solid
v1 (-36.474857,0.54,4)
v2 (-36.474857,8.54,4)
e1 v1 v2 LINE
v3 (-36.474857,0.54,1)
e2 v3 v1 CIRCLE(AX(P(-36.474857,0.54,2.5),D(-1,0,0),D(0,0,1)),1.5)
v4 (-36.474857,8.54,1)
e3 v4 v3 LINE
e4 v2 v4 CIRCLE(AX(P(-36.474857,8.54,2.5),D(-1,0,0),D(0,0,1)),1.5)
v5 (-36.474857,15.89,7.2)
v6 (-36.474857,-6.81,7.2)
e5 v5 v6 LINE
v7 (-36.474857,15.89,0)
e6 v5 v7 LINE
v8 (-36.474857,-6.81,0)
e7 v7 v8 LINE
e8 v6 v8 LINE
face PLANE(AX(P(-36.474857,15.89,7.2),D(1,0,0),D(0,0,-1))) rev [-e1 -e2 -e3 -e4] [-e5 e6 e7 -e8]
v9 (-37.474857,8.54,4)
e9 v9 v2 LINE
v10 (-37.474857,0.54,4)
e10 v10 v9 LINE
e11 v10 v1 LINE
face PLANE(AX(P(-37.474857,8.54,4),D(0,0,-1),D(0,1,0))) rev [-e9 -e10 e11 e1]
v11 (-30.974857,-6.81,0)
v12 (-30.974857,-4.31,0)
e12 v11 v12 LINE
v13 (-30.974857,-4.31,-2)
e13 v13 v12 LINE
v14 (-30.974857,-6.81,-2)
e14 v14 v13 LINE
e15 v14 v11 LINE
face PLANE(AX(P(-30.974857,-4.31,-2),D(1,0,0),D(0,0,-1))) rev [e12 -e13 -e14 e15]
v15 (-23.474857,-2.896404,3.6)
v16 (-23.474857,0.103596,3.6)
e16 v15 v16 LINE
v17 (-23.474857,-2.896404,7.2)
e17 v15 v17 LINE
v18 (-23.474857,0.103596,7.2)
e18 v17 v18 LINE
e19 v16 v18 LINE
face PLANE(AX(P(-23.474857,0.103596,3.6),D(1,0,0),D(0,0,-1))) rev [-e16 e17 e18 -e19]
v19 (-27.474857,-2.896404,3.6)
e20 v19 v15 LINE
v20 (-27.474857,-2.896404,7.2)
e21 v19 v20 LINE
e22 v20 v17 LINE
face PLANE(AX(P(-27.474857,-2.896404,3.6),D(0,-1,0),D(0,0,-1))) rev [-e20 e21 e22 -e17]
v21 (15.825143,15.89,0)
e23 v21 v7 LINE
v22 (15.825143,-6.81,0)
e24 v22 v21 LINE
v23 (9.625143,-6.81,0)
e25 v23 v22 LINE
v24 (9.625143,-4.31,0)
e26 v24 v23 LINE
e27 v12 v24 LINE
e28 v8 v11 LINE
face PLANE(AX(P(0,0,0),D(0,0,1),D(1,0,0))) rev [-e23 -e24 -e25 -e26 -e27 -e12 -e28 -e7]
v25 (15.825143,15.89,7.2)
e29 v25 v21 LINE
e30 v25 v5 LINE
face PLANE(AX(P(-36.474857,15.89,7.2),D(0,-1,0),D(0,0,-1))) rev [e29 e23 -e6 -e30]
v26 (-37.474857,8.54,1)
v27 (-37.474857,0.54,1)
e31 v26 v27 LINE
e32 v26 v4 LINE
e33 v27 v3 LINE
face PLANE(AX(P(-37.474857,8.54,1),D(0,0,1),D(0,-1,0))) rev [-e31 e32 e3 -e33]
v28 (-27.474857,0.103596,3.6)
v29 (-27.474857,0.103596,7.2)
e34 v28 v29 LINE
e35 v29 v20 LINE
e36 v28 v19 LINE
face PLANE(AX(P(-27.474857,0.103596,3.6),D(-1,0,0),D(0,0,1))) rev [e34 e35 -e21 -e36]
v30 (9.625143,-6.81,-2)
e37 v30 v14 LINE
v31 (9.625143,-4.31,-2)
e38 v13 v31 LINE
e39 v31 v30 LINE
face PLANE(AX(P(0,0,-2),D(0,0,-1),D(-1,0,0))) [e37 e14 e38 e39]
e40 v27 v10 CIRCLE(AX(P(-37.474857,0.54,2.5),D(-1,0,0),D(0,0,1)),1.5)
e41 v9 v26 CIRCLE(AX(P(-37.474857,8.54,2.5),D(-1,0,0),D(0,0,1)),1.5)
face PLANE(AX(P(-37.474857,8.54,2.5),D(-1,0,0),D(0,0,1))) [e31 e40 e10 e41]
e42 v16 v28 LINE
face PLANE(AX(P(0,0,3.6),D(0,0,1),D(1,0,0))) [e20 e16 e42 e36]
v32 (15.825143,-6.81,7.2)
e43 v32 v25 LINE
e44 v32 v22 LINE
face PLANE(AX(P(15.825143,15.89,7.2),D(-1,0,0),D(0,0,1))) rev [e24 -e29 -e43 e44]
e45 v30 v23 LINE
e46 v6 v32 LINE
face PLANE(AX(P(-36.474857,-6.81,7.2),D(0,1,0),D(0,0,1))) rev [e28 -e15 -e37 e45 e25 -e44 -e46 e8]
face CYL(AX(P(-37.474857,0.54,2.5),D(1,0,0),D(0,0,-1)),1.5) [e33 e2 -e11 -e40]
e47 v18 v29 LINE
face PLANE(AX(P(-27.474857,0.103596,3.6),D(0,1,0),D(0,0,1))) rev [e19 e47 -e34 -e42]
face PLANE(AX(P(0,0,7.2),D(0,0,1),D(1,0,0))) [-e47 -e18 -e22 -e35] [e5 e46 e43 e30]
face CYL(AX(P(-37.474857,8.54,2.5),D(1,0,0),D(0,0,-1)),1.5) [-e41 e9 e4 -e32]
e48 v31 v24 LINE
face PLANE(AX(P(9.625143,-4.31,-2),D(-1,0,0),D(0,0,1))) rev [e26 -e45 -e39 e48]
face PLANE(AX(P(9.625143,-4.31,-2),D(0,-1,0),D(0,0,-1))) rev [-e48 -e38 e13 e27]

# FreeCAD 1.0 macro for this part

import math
import FreeCAD as App
import Part
import Sketcher
from FreeCAD import Vector


def add_polygon(sketch, points):
    """Adds a closed chain of lines whose ends are joined by coincident constraints."""
    first, n = sketch.GeometryCount, len(points)
    for a, b in zip(points, points[1:] + points[:1]):
        sketch.addGeometry(Part.LineSegment(App.Vector(*a, 0), App.Vector(*b, 0)), False)
    for i in range(n):
        sketch.addConstraint(Sketcher.Constraint("Coincident", first + i, 2, first + (i + 1) % n, 1))

doc = App.newDocument("Part")
body = doc.addObject("PartDesign::Body", "Body")

# Sketch on XY plane
sketch1 = body.newObject("Sketcher::SketchObject", "Sketch")
sketch1.AttachmentSupport = (doc.getObject("XY_Plane"), [""])
sketch1.MapMode = "FlatFace"
add_polygon(sketch1, [(-36.474857, 15.89), (-36.474857, -6.81), (15.825143, -6.81), (15.825143, 15.89)])  # lines 0-3
sketch1.addConstraint([
    Sketcher.Constraint("Vertical", 0),
    Sketcher.Constraint("Horizontal", 1),
    Sketcher.Constraint("Vertical", 2),
    Sketcher.Constraint("Horizontal", 3),
    Sketcher.Constraint("DistanceX", 1, 1, 1, 2, 52.3),
    Sketcher.Constraint("DistanceY", 0, 2, 0, 1, 22.7),
    Sketcher.Constraint("DistanceY", 0, 2, -1, 1, 6.81),
    Sketcher.Constraint("DistanceX", 0, 2, -1, 1, 36.474857),
])
pad1 = body.newObject("PartDesign::Pad", "Pad")
pad1.Profile = sketch1
pad1.Length = 7.2

# Sketch on XY plane
sketch2 = body.newObject("Sketcher::SketchObject", "Sketch001")
sketch2.AttachmentSupport = (doc.getObject("XY_Plane"), [""])
sketch2.MapMode = "FlatFace"
add_polygon(sketch2, [(9.625143, -4.31), (9.625143, -6.81), (-30.974857, -6.81), (-30.974857, -4.31)])  # lines 0-3
sketch2.addConstraint([
    Sketcher.Constraint("Vertical", 0),
    Sketcher.Constraint("Horizontal", 1),
    Sketcher.Constraint("Vertical", 2),
    Sketcher.Constraint("Horizontal", 3),
    Sketcher.Constraint("DistanceX", 1, 2, 1, 1, 40.6),
    Sketcher.Constraint("DistanceY", 0, 2, 0, 1, 2.5),
    Sketcher.Constraint("DistanceY", 0, 2, -1, 1, 6.81),
    Sketcher.Constraint("DistanceX", -1, 1, 0, 2, 9.625143),
])
pad2 = body.newObject("PartDesign::Pad", "Pad001")
pad2.Profile = sketch2
pad2.Length = 2
pad2.Reversed = True

# Sketch on YZ plane
sketch3 = body.newObject("Sketcher::SketchObject", "Sketch002")
sketch3.AttachmentSupport = (doc.getObject("YZ_Plane"), [""])
sketch3.MapMode = "FlatFace"
sketch3.AttachmentOffset = App.Placement(Vector(0, 0, -36.474857), App.Rotation())
sketch3.addGeometry([
    Part.LineSegment(Vector(0.54, 4, 0), Vector(8.54, 4, 0)),
    Part.ArcOfCircle(Part.Circle(Vector(8.54, 2.5, 0), Vector(0, 0, 1), 1.5), math.radians(-90), math.radians(90)),
    Part.LineSegment(Vector(8.54, 1, 0), Vector(0.54, 1, 0)),
    Part.ArcOfCircle(Part.Circle(Vector(0.54, 2.5, 0), Vector(0, 0, 1), 1.5), math.radians(90), math.radians(270)),
], False)
sketch3.addConstraint([
    Sketcher.Constraint("Tangent", 0, 2, 1, 2),
    Sketcher.Constraint("Tangent", 1, 1, 2, 1),
    Sketcher.Constraint("Tangent", 2, 2, 3, 2),
    Sketcher.Constraint("Tangent", 3, 1, 0, 1),
    Sketcher.Constraint("Horizontal", 0),
    Sketcher.Constraint("Horizontal", 2),
    Sketcher.Constraint("Radius", 1, 1.5),
    Sketcher.Constraint("DistanceX", 0, 1, 0, 2, 8.0),
    Sketcher.Constraint("DistanceY", -1, 1, 0, 2, 4.0),
    Sketcher.Constraint("DistanceX", -1, 1, 1, 3, 8.54),
])
pad3 = body.newObject("PartDesign::Pad", "Pad002")
pad3.Profile = sketch3
pad3.Length = 1
pad3.Reversed = True

# Sketch on XY plane
sketch4 = body.newObject("Sketcher::SketchObject", "Sketch003")
sketch4.AttachmentSupport = (doc.getObject("XY_Plane"), [""])
sketch4.MapMode = "FlatFace"
sketch4.AttachmentOffset = App.Placement(Vector(0, 0, 7.2), App.Rotation())
add_polygon(sketch4, [(-27.474857, 0.103596), (-27.474857, -2.896404), (-23.474857, -2.896404), (-23.474857, 0.103596)])  # lines 0-3
sketch4.addConstraint([
    Sketcher.Constraint("Vertical", 0),
    Sketcher.Constraint("Horizontal", 1),
    Sketcher.Constraint("Vertical", 2),
    Sketcher.Constraint("Horizontal", 3),
    Sketcher.Constraint("DistanceX", 1, 1, 1, 2, 4.0),
    Sketcher.Constraint("DistanceY", 0, 2, 0, 1, 3.0),
    Sketcher.Constraint("DistanceX", 0, 2, -1, 1, 27.474857),
    Sketcher.Constraint("DistanceY", 0, 2, -1, 1, 2.896404),
])
pocket1 = body.newObject("PartDesign::Pocket", "Pocket")
pocket1.Profile = sketch4
pocket1.Length = 3.6

doc.recompute()
